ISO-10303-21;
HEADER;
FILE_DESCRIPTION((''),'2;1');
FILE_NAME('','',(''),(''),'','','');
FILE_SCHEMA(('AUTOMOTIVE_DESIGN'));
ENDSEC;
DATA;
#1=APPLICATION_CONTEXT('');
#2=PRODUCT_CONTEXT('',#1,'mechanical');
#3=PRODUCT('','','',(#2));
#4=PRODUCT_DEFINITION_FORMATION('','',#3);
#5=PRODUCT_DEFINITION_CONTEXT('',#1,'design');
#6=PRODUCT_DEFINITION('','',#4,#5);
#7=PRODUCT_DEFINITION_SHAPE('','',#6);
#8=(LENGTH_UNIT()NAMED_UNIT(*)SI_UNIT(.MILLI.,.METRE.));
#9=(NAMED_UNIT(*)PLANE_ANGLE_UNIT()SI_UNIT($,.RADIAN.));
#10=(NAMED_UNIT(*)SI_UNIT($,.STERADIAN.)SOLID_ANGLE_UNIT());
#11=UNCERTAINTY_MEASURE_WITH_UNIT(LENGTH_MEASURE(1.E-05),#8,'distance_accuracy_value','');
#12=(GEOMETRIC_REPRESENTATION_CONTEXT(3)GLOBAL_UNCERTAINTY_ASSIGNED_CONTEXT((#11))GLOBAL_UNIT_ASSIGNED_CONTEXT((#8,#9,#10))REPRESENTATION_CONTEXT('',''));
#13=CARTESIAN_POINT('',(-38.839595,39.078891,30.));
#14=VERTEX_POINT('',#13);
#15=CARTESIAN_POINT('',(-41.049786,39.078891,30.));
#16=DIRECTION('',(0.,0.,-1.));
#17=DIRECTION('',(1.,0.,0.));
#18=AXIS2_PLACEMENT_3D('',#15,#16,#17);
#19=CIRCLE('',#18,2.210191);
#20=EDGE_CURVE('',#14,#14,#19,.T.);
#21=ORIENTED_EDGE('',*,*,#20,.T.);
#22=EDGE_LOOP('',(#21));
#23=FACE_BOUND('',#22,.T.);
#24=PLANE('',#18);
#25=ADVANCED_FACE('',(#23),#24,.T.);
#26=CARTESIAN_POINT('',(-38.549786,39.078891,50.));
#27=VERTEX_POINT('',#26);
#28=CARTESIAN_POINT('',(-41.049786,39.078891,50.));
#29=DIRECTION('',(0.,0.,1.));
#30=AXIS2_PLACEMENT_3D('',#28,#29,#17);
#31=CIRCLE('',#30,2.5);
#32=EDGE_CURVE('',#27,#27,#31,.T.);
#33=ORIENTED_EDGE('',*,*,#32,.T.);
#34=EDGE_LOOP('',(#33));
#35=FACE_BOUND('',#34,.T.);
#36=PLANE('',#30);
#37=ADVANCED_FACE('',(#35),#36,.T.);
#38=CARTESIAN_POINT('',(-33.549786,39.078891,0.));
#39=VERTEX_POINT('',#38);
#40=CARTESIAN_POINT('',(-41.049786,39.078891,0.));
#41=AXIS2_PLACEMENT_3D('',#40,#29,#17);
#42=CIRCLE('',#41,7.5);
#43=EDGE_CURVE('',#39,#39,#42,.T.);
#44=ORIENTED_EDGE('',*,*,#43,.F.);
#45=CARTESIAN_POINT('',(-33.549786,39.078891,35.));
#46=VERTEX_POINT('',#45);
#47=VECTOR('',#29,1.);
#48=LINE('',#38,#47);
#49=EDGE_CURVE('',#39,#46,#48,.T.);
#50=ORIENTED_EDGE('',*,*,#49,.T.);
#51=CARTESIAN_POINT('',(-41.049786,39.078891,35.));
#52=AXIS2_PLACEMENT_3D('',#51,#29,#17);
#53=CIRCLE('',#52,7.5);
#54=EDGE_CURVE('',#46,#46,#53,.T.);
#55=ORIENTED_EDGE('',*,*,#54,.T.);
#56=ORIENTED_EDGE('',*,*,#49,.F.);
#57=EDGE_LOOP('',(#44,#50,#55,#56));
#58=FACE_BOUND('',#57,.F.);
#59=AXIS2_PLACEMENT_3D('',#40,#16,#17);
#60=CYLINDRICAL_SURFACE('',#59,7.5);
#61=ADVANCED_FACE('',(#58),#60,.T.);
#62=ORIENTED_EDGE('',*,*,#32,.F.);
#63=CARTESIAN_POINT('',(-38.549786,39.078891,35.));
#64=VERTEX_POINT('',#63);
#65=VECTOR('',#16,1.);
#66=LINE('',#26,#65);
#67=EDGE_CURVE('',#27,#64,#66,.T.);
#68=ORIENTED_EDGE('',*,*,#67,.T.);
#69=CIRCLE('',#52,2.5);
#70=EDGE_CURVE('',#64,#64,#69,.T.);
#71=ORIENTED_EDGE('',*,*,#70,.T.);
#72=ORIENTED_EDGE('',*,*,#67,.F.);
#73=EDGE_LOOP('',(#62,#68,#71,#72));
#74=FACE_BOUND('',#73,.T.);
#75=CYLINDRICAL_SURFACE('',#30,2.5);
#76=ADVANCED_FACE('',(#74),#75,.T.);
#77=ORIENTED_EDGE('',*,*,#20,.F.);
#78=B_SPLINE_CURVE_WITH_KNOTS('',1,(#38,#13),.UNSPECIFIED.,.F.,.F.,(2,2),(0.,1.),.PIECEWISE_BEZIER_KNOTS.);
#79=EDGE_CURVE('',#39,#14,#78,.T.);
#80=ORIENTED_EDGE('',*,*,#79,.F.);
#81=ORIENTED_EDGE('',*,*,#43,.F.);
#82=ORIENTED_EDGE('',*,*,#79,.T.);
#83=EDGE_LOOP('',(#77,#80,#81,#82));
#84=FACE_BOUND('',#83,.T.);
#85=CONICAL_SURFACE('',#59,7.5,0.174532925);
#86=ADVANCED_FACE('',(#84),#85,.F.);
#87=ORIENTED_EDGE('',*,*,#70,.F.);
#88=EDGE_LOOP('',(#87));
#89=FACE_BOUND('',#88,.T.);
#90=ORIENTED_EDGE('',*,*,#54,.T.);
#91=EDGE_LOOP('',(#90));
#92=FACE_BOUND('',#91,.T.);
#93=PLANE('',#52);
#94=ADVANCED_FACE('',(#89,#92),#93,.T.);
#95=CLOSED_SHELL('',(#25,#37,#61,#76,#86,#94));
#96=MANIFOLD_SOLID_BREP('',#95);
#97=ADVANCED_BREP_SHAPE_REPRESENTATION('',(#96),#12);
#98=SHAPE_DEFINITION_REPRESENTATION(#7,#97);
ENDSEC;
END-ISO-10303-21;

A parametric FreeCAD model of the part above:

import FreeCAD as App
import Part
import Sketcher

V = App.Vector
Q = App.Units.Quantity

doc = App.newDocument("Part")
body = doc.addObject("PartDesign::Body", "Body")

# Sketch on XY plane
sketch1 = body.newObject("Sketcher::SketchObject", "Sketch")
sketch1.AttachmentSupport = (doc.getObject("XY_Plane"), [""])
sketch1.MapMode = "FlatFace"
sketch1.addGeometry(Part.Circle(V(-41.049786, 39.078891, 0), V(0, 0, 1), 7.5), False)
sketch1.addConstraint(Sketcher.Constraint("Diameter", 0, Q("15 mm")))
sketch1.addConstraint(Sketcher.Constraint("DistanceY", -1, 1, 0, 3, Q("39.078891 mm")))
sketch1.addConstraint(Sketcher.Constraint("DistanceX", 0, 3, -1, 1, Q("41.049786 mm")))
pad1 = body.newObject("PartDesign::Pad", "Pad")
pad1.Profile = sketch1
pad1.Length = 50

# Sketch on XY plane
sketch2 = body.newObject("Sketcher::SketchObject", "Sketch001")
sketch2.AttachmentSupport = (doc.getObject("XY_Plane"), [""])
sketch2.MapMode = "FlatFace"
sketch2.addGeometry(Part.Circle(V(-41.049786, 39.078891, 0), V(0, 0, 1), 7.5), False)
sketch2.addConstraint(Sketcher.Constraint("Diameter", 0, Q("15 mm")))
sketch2.addConstraint(Sketcher.Constraint("DistanceY", -1, 1, 0, 3, Q("39.078891 mm")))
sketch2.addConstraint(Sketcher.Constraint("DistanceX", 0, 3, -1, 1, Q("41.049786 mm")))
pocket1 = body.newObject("PartDesign::Pocket", "Pocket")
pocket1.Profile = sketch2
pocket1.Length = 30
pocket1.Reversed = True
pocket1.TaperAngle = -10

# Sketch on XY plane
sketch3 = body.newObject("Sketcher::SketchObject", "Sketch002")
sketch3.AttachmentSupport = (doc.getObject("XY_Plane"), [""])
sketch3.MapMode = "FlatFace"
sketch3.AttachmentOffset = App.Placement(V(0, 0, 50), App.Rotation())
sketch3.addGeometry(Part.Circle(V(-41.049786, 39.078891, 0), V(0, 0, 1), 7.5), False)
sketch3.addGeometry(Part.Circle(V(-41.049786, 39.078891, 0), V(0, 0, 1), 2.5), False)
sketch3.addConstraint(Sketcher.Constraint("Coincident", 1, 3, 0, 3))
sketch3.addConstraint(Sketcher.Constraint("Diameter", 0, Q("15 mm")))
sketch3.addConstraint(Sketcher.Constraint("Diameter", 1, Q("5 mm")))
sketch3.addConstraint(Sketcher.Constraint("DistanceY", -1, 1, 0, 3, Q("39.078891 mm")))
sketch3.addConstraint(Sketcher.Constraint("DistanceX", 0, 3, -1, 1, Q("41.049786 mm")))
pocket2 = body.newObject("PartDesign::Pocket", "Pocket001")
pocket2.Profile = sketch3
pocket2.Length = 15

doc.recompute()
